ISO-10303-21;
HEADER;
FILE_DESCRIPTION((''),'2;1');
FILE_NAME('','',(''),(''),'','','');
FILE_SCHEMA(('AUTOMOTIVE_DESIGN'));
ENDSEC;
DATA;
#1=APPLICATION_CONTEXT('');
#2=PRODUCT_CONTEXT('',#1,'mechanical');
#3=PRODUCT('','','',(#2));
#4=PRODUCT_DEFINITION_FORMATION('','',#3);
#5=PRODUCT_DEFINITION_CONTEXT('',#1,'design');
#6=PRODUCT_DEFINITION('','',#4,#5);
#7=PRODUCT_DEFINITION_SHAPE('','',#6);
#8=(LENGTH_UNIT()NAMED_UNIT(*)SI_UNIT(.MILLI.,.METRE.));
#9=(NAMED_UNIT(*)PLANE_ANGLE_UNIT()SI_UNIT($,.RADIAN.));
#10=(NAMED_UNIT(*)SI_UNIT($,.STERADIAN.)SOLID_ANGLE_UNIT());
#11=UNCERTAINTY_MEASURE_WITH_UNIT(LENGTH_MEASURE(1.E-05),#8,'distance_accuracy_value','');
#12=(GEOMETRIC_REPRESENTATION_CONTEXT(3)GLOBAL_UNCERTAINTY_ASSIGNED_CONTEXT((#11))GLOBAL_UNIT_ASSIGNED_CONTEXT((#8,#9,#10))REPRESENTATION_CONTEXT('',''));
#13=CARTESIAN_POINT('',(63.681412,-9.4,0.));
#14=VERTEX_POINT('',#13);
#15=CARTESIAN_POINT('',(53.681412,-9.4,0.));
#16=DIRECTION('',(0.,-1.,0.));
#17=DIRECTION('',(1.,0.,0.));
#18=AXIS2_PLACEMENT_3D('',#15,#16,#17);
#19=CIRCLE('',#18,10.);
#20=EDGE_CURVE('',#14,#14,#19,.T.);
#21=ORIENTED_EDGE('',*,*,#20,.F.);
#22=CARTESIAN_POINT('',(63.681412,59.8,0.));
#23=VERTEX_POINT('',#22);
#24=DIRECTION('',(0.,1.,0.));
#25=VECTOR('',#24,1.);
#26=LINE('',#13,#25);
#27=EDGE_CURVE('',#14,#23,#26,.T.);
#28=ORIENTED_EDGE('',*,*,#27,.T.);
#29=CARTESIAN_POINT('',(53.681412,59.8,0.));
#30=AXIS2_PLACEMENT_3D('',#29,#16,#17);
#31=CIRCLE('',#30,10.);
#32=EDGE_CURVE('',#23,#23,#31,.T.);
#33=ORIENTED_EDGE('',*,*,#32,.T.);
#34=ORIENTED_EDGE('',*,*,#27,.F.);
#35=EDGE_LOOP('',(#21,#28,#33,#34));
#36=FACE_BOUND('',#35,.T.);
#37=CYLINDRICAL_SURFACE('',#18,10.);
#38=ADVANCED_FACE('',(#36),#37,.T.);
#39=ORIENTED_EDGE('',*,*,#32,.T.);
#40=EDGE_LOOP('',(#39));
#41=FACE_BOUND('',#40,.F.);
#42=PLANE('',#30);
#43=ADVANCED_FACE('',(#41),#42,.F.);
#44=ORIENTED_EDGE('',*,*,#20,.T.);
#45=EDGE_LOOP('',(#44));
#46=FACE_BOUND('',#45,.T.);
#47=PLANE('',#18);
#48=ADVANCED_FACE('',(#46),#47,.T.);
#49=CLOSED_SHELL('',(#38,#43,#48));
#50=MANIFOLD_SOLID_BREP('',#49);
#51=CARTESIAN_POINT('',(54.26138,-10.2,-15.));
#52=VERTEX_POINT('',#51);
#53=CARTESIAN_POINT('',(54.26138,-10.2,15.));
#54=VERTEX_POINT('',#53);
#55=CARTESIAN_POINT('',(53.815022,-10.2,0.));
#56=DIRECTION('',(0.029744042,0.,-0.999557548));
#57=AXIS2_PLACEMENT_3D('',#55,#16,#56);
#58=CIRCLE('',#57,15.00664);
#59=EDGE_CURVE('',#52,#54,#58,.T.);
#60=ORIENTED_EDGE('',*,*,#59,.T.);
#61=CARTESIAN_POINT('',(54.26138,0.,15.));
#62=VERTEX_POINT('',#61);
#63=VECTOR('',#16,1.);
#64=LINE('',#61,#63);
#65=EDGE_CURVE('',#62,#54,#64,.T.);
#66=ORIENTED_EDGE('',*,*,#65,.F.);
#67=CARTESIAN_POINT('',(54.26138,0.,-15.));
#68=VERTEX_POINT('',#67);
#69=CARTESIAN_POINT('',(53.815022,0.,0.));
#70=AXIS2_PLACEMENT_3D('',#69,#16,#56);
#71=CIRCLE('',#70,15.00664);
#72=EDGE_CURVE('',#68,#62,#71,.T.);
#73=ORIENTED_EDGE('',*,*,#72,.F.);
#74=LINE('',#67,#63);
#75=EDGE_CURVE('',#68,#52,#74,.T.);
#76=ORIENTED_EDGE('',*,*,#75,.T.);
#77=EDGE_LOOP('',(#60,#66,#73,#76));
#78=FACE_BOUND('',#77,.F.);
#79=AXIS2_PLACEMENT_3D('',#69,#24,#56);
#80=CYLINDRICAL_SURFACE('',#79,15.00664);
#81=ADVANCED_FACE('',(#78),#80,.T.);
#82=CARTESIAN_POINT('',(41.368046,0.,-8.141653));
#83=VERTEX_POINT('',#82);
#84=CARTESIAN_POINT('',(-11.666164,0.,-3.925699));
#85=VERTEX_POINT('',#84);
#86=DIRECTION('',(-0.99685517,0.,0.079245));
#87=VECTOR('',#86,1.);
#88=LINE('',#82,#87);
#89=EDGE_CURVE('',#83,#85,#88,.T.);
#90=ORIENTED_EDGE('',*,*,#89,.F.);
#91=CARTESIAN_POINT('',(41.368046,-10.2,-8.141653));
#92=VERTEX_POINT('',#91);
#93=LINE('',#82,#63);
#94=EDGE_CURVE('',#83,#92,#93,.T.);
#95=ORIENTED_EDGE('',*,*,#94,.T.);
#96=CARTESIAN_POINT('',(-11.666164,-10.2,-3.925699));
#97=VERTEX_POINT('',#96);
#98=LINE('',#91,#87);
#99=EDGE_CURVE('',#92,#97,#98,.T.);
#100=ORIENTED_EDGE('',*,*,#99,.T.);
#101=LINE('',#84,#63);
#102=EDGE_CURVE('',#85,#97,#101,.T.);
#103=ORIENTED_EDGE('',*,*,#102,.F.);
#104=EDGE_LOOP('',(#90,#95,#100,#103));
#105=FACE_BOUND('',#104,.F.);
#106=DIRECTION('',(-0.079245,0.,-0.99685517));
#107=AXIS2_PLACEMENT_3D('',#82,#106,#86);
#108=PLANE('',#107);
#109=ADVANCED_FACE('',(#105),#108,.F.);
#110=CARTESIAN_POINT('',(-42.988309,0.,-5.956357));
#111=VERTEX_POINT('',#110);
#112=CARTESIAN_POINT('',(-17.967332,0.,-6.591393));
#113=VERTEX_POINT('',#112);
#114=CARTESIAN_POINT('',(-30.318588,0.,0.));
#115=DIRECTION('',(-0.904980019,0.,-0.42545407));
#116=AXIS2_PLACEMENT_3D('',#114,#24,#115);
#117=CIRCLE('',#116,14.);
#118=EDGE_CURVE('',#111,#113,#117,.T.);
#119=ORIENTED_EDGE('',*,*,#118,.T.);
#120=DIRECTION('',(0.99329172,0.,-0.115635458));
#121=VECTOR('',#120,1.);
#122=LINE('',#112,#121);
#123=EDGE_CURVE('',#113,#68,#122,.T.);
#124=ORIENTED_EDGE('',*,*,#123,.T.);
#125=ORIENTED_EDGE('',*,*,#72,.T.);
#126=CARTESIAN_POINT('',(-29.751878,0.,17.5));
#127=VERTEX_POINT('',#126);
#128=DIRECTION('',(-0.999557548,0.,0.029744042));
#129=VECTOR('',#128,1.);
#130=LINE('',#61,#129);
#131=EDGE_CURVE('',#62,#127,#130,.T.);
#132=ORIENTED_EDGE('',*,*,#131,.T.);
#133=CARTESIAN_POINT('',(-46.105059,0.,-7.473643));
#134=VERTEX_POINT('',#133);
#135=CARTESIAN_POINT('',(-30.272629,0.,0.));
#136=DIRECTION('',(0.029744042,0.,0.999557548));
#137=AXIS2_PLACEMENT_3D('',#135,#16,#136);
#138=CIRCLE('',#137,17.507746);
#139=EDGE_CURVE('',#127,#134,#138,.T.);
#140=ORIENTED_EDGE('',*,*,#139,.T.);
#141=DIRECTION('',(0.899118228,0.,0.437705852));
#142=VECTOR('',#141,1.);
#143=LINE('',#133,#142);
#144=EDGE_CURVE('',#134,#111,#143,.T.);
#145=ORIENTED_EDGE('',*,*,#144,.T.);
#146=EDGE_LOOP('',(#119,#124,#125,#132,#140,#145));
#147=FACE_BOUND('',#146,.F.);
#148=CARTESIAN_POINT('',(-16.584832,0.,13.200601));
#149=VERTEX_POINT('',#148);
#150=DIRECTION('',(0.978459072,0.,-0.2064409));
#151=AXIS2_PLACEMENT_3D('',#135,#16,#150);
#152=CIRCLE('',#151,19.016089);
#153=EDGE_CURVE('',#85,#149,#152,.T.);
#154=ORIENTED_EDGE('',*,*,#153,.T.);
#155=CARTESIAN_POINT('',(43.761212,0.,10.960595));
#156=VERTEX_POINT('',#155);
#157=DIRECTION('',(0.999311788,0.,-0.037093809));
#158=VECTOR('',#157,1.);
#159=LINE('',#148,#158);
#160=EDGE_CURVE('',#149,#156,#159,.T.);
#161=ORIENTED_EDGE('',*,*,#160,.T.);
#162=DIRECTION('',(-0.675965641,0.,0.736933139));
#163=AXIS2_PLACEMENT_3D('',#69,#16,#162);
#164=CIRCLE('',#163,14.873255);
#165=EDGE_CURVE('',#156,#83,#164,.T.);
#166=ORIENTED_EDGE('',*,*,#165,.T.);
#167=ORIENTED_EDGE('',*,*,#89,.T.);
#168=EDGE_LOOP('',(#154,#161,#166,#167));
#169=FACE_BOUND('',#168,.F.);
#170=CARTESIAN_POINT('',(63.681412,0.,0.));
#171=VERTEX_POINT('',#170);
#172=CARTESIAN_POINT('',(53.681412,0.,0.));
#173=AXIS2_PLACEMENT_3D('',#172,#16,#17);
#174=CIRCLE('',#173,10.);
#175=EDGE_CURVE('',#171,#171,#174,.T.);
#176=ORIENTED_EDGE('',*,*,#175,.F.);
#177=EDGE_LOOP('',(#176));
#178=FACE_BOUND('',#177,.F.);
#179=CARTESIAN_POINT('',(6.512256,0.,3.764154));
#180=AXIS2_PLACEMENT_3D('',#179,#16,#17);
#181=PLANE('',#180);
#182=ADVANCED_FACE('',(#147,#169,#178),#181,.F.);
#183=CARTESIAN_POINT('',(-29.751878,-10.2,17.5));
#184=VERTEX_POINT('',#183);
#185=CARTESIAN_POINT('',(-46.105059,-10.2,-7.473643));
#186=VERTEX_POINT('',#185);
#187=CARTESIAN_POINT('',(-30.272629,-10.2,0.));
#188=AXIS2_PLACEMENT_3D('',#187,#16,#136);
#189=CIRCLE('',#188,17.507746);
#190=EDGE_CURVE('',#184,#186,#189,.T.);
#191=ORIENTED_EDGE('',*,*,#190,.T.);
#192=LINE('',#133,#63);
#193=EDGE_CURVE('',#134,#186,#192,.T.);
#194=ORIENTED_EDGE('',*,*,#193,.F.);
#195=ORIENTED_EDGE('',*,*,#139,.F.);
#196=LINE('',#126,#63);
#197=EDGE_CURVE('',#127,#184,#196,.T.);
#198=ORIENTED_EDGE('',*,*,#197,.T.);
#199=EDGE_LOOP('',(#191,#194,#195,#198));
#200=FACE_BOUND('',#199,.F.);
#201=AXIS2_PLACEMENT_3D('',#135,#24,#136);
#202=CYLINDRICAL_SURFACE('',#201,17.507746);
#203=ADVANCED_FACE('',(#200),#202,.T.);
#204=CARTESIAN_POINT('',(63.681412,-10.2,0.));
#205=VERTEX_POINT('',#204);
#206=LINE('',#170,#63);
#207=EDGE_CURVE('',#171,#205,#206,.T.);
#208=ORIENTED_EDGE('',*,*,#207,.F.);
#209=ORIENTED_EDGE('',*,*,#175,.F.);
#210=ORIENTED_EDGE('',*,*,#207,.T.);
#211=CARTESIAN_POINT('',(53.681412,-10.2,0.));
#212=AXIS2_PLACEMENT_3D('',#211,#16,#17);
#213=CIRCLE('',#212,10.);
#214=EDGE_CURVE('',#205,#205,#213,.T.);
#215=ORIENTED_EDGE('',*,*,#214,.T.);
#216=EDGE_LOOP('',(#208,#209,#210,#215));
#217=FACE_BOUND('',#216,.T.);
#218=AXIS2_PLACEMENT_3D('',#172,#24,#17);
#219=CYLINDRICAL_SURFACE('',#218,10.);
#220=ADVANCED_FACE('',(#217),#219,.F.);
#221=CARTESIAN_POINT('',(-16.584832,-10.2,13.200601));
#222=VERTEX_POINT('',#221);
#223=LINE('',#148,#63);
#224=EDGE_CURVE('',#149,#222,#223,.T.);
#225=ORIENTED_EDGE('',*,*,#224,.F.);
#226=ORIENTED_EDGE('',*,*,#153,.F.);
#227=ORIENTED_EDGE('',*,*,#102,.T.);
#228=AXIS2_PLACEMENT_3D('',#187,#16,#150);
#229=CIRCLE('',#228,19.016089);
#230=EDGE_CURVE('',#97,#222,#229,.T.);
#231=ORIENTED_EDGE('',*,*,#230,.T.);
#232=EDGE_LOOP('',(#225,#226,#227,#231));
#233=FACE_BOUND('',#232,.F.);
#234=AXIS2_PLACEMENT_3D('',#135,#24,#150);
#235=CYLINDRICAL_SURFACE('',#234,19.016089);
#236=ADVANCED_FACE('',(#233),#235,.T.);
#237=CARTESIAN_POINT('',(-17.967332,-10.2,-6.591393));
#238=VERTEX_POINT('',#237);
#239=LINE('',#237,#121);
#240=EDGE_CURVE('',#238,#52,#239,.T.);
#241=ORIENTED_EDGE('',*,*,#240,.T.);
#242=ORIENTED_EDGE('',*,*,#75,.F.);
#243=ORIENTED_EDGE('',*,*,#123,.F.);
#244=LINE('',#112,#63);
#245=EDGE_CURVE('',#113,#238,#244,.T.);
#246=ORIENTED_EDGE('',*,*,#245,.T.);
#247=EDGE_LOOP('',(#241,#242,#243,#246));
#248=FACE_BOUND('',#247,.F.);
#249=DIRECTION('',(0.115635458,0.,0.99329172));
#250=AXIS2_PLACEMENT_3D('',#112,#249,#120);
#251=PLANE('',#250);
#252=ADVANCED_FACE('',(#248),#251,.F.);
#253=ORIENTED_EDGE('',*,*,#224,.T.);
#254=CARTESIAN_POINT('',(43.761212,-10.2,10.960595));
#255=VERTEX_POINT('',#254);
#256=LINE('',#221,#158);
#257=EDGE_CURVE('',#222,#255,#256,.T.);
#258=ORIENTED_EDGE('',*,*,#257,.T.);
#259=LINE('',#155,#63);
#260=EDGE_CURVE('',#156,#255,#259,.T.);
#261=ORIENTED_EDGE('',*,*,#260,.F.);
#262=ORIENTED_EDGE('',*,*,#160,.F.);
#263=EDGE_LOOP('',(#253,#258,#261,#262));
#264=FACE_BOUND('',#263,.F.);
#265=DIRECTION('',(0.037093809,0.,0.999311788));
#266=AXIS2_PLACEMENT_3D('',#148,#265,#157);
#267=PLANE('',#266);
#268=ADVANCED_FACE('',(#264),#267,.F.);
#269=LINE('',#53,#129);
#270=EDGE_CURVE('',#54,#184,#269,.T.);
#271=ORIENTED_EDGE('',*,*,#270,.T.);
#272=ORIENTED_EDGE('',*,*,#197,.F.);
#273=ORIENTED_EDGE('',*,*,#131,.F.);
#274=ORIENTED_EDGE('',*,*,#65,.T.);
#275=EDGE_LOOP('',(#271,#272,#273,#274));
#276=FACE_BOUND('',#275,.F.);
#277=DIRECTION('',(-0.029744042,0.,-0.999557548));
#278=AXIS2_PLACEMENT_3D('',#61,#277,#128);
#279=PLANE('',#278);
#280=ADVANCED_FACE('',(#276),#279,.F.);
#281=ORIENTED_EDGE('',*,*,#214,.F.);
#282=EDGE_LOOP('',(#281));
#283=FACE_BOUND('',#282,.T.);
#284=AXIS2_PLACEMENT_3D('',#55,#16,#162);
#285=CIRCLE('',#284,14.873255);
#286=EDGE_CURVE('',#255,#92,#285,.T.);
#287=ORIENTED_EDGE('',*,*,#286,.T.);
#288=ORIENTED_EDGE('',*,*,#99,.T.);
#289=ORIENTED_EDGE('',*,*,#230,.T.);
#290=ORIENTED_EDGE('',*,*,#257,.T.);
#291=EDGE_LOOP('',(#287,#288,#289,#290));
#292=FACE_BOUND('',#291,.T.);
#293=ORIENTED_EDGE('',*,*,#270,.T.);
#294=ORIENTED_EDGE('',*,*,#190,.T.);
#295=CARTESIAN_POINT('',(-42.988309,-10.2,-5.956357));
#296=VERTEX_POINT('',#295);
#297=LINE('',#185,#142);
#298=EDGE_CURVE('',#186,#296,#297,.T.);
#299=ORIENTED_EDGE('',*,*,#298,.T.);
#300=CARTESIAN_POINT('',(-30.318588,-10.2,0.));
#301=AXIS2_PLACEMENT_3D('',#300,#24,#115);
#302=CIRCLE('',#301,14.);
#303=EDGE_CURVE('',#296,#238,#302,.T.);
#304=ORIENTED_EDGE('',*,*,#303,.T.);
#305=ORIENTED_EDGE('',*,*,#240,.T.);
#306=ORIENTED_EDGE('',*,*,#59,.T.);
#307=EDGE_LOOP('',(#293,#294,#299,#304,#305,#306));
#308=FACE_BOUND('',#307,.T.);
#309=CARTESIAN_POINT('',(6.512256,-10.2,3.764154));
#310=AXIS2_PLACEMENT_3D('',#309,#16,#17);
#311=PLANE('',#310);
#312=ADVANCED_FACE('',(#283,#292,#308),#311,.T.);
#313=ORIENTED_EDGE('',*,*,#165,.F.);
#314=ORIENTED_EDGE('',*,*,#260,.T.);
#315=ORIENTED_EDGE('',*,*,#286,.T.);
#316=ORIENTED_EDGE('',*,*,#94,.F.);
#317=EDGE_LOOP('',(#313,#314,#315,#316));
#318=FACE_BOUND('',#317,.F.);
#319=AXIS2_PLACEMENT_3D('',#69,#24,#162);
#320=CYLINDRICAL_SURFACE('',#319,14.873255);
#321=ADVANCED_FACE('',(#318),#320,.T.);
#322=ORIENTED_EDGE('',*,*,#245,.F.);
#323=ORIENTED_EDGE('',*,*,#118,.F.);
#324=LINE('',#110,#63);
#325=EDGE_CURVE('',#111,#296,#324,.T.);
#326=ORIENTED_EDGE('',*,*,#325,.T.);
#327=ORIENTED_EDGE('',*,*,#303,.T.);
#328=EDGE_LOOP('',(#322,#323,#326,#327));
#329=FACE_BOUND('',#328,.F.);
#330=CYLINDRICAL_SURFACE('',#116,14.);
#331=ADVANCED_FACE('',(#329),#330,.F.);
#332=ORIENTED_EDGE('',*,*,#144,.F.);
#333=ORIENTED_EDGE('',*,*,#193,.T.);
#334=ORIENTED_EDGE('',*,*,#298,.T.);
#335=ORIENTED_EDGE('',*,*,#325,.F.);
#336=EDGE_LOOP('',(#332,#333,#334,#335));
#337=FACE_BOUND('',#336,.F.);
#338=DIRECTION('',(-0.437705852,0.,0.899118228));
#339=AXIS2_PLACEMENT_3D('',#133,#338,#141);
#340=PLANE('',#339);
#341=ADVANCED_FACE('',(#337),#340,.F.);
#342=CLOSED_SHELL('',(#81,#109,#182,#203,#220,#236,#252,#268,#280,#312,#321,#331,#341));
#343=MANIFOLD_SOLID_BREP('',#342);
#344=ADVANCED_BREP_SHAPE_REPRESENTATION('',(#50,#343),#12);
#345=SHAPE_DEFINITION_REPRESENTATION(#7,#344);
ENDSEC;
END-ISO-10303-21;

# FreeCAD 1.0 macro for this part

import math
import FreeCAD as App
import Part
import Sketcher

V = App.Vector

doc = App.newDocument("Part")
params = doc.addObject("Spreadsheet::Sheet", "Params")
for row, (alias, value) in enumerate([
    ("sketch1_diameter", "20 mm"),
    ("sketch1_radius", "14 mm"),
    ("pad1_length", "10.2 mm"),
    ("sketch2_diameter", "20 mm"),
    ("pad2_length", "69.2 mm"),
], start=1):
    params.set(f"A{row}", alias)
    params.set(f"B{row}", "=" + value)
    params.setAlias(f"B{row}", alias)

body = doc.addObject("PartDesign::Body", "Body")

sketch1 = body.newObject("Sketcher::SketchObject", "Sketch")
sketch1.AttachmentSupport = (doc.getObject("XZ_Plane"), [""])
sketch1.MapMode = "FlatFace"
sketch1.addGeometry(Part.LineSegment(V(54.26138, 15, 0), V(-29.751878, 17.5, 0)), False)
sketch1.addGeometry(Part.ArcOfCircle(Part.Circle(V(-30.272629, 0, 0), V(0, 0, 1), 17.507746), math.radians(88.295541), math.radians(205.26949)), False)
sketch1.addGeometry(Part.LineSegment(V(-46.105059, -7.473643, 0), V(-42.988309, -5.956357, 0)), False)
sketch1.addGeometry(Part.ArcOfCircle(Part.Circle(V(-30.318588, 0, 0), V(0, 0, 1), 14), math.radians(-28.087132), math.radians(205.179408)), False)
sketch1.addGeometry(Part.LineSegment(V(-17.967332, -6.591393, 0), V(54.26138, -15, 0)), False)
sketch1.addGeometry(Part.ArcOfCircle(Part.Circle(V(53.815022, 0, 0), V(0, 0, 1), 15.00664), math.radians(-88.295541), math.radians(88.295541)), False)
sketch1.addGeometry(Part.Circle(V(53.681412, 0, 0), V(0, 0, 1), 10), False)
sketch1.addGeometry(Part.LineSegment(V(41.368046, -8.141653, 0), V(-11.666164, -3.925699, 0)), False)
sketch1.addGeometry(Part.ArcOfCircle(Part.Circle(V(-30.272629, 0, 0), V(0, 0, 1), 19.016089), math.radians(-11.913861), math.radians(43.96196)), False)
sketch1.addGeometry(Part.LineSegment(V(-16.584832, 13.200601, 0), V(43.761212, 10.960595, 0)), False)
sketch1.addGeometry(Part.ArcOfCircle(Part.Circle(V(53.815022, 0, 0), V(0, 0, 1), 14.873255), math.radians(132.529183), math.radians(213.188977)), False)
sketch1.addConstraint(Sketcher.Constraint("Tangent", 0, 2, 1, 1))
sketch1.addConstraint(Sketcher.Constraint("Coincident", 1, 2, 2, 1))
sketch1.addConstraint(Sketcher.Constraint("Coincident", 2, 2, 3, 2))
sketch1.addConstraint(Sketcher.Constraint("Coincident", 3, 1, 4, 1))
sketch1.addConstraint(Sketcher.Constraint("Coincident", 4, 2, 5, 1))
sketch1.addConstraint(Sketcher.Constraint("Tangent", 5, 2, 0, 1))
sketch1.addConstraint(Sketcher.Constraint("Coincident", 7, 2, 8, 1))
sketch1.addConstraint(Sketcher.Constraint("Coincident", 8, 2, 9, 1))
sketch1.addConstraint(Sketcher.Constraint("Coincident", 9, 2, 10, 1))
sketch1.addConstraint(Sketcher.Constraint("Coincident", 10, 2, 7, 1))
sketch1.addConstraint(Sketcher.Constraint("Coincident", 8, 3, 1, 3))
sketch1.addConstraint(Sketcher.Constraint("Coincident", 10, 3, 5, 3))
sketch1.addConstraint(Sketcher.Constraint("Symmetric", 4, 2, 5, 2, -1))
sketch1.addConstraint(Sketcher.Constraint("PointOnObject", 1, 3, -1))
sketch1.addConstraint(Sketcher.Constraint("PointOnObject", 3, 3, -1))
sketch1.addConstraint(Sketcher.Constraint("PointOnObject", 6, 3, -1))
sketch1.addConstraint(Sketcher.Constraint("Diameter", 6, 20.0))
sketch1.addConstraint(Sketcher.Constraint("Radius", 3, 14.0))
sketch1.addConstraint(Sketcher.Constraint("DistanceY", 4, 2, -1, 1, 15.0))
sketch1.addConstraint(Sketcher.Constraint("DistanceX", 3, 3, 6, 3, 84.0))
sketch1.addConstraint(Sketcher.Constraint("DistanceY", -1, 1, 0, 2, 17.5))
sketch1.addConstraint(Sketcher.Constraint("Radius", 8, 19.016089))
sketch1.addConstraint(Sketcher.Constraint("Radius", 10, 14.873255))
sketch1.addConstraint(Sketcher.Constraint("DistanceY", 7, 2, -1, 1, 3.925699))
sketch1.addConstraint(Sketcher.Constraint("DistanceY", -1, 1, 8, 2, 13.200601))
sketch1.addConstraint(Sketcher.Constraint("DistanceX", 0, 2, 5, 3, 83.5669))
sketch1.addConstraint(Sketcher.Constraint("DistanceX", 9, 2, 6, 3, 9.920199))
sketch1.addConstraint(Sketcher.Constraint("Distance", 7, 53.20152))
sketch1.addConstraint(Sketcher.Constraint("DistanceX", 1, 3, -1, 1, 30.272629))
sketch1.addConstraint(Sketcher.Constraint("DistanceX", 3, 3, -1, 1, 30.318588))
sketch1.addConstraint(Sketcher.Constraint("DistanceX", 1, 2, -1, 1, 46.105059))
sketch1.addConstraint(Sketcher.Constraint("DistanceX", 2, 2, -1, 1, 42.988309))
sketch1.addConstraint(Sketcher.Constraint("DistanceX", 3, 1, -1, 1, 17.967332))
sketch1.setExpression("Constraints[16]", "Params.sketch1_diameter")
sketch1.setExpression("Constraints[17]", "Params.sketch1_radius")
pad1 = body.newObject("PartDesign::Pad", "Pad")
pad1.Profile = sketch1
pad1.setExpression("Length", "Params.pad1_length")
body2 = doc.addObject("PartDesign::Body", "Body001")

sketch2 = body2.newObject("Sketcher::SketchObject", "Sketch001")
sketch2.AttachmentSupport = (doc.getObject("XZ_Plane001"), [""])
sketch2.MapMode = "FlatFace"
sketch2.AttachmentOffset = App.Placement(V(0, 0, 9.4), App.Rotation())
sketch2.addGeometry(Part.Circle(V(53.681412, 0, 0), V(0, 0, 1), 10), False)
sketch2.addConstraint(Sketcher.Constraint("PointOnObject", 0, 3, -1))
sketch2.addConstraint(Sketcher.Constraint("Diameter", 0, 20.0))
sketch2.addConstraint(Sketcher.Constraint("DistanceX", -1, 1, 0, 3, 53.681412))
sketch2.setExpression("Constraints[1]", "Params.sketch2_diameter")
pad2 = body2.newObject("PartDesign::Pad", "Pad001")
pad2.Profile = sketch2
pad2.setExpression("Length", "Params.pad2_length")
pad2.Reversed = True

doc.recompute()
